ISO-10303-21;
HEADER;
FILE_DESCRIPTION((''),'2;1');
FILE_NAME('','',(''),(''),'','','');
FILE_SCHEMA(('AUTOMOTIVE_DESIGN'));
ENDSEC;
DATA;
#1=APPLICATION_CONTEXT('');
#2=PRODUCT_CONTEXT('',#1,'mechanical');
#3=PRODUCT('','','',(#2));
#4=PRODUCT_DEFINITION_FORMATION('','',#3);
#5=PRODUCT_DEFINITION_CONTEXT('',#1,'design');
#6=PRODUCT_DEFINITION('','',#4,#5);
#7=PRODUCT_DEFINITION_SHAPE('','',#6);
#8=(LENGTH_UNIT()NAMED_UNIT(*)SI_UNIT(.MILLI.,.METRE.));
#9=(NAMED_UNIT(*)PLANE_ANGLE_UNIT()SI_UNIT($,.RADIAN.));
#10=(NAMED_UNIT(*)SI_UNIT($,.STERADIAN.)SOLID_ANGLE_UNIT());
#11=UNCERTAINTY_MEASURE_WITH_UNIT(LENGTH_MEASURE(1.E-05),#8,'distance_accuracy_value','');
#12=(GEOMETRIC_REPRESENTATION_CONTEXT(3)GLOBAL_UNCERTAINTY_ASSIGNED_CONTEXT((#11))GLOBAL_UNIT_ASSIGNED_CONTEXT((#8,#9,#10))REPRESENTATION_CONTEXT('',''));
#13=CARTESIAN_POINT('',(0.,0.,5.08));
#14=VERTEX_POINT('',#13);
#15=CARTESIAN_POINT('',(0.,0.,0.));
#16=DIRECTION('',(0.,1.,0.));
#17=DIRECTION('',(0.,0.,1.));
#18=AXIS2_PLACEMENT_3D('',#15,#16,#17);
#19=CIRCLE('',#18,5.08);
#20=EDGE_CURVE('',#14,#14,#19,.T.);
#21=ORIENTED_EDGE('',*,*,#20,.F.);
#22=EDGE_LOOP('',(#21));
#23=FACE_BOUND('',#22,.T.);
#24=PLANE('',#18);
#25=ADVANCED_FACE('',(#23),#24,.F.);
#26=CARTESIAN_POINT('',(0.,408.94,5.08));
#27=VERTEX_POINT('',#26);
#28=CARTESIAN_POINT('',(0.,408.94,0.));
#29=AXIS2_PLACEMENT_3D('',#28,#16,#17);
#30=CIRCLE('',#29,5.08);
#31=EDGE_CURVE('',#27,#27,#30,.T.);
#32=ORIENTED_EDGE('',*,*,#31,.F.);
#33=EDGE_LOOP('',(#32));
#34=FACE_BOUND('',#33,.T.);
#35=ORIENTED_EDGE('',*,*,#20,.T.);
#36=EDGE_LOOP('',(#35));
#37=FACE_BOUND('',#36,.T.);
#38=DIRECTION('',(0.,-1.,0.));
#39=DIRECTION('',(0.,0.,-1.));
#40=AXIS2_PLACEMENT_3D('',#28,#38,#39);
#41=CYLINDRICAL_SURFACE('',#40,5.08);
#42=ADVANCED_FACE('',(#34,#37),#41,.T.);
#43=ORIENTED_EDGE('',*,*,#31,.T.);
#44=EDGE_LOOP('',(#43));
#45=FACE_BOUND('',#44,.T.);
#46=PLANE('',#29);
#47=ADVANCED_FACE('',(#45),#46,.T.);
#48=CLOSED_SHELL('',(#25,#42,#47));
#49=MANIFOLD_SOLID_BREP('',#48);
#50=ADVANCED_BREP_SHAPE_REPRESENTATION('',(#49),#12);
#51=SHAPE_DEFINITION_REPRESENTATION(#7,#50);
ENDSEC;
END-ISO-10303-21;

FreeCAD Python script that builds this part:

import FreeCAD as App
import Part
import Sketcher
from FreeCAD import Vector
Q = App.Units.Quantity

doc = App.newDocument("Part")
params = doc.addObject("Spreadsheet::Sheet", "Params")
for row, (alias, value) in enumerate([
    ("sketch1_diameter", "0.4 in"),
    ("pad1_length", "16.1 in"),
], start=1):
    params.set(f"A{row}", alias)
    params.set(f"B{row}", "=" + value)
    params.setAlias(f"B{row}", alias)

body = doc.addObject("PartDesign::Body", "Body")

sketch1 = body.newObject("Sketcher::SketchObject", "Sketch")
sketch1.AttachmentSupport = (doc.getObject("XZ_Plane"), [""])
sketch1.MapMode = "FlatFace"
sketch1.addGeometry(Part.Circle(Vector(0, 0, 0), Vector(0, 0, 1), 5.08), False)
sketch1.addConstraint(Sketcher.Constraint("Coincident", 0, 3, -1, 1))
sketch1.addConstraint(Sketcher.Constraint("Diameter", 0, Q("0.4 in")))
sketch1.setExpression("Constraints[1]", "Params.sketch1_diameter")
pad1 = body.newObject("PartDesign::Pad", "Pad")
pad1.Profile = sketch1
pad1.setExpression("Length", "Params.pad1_length")
pad1.Reversed = True

doc.recompute()
